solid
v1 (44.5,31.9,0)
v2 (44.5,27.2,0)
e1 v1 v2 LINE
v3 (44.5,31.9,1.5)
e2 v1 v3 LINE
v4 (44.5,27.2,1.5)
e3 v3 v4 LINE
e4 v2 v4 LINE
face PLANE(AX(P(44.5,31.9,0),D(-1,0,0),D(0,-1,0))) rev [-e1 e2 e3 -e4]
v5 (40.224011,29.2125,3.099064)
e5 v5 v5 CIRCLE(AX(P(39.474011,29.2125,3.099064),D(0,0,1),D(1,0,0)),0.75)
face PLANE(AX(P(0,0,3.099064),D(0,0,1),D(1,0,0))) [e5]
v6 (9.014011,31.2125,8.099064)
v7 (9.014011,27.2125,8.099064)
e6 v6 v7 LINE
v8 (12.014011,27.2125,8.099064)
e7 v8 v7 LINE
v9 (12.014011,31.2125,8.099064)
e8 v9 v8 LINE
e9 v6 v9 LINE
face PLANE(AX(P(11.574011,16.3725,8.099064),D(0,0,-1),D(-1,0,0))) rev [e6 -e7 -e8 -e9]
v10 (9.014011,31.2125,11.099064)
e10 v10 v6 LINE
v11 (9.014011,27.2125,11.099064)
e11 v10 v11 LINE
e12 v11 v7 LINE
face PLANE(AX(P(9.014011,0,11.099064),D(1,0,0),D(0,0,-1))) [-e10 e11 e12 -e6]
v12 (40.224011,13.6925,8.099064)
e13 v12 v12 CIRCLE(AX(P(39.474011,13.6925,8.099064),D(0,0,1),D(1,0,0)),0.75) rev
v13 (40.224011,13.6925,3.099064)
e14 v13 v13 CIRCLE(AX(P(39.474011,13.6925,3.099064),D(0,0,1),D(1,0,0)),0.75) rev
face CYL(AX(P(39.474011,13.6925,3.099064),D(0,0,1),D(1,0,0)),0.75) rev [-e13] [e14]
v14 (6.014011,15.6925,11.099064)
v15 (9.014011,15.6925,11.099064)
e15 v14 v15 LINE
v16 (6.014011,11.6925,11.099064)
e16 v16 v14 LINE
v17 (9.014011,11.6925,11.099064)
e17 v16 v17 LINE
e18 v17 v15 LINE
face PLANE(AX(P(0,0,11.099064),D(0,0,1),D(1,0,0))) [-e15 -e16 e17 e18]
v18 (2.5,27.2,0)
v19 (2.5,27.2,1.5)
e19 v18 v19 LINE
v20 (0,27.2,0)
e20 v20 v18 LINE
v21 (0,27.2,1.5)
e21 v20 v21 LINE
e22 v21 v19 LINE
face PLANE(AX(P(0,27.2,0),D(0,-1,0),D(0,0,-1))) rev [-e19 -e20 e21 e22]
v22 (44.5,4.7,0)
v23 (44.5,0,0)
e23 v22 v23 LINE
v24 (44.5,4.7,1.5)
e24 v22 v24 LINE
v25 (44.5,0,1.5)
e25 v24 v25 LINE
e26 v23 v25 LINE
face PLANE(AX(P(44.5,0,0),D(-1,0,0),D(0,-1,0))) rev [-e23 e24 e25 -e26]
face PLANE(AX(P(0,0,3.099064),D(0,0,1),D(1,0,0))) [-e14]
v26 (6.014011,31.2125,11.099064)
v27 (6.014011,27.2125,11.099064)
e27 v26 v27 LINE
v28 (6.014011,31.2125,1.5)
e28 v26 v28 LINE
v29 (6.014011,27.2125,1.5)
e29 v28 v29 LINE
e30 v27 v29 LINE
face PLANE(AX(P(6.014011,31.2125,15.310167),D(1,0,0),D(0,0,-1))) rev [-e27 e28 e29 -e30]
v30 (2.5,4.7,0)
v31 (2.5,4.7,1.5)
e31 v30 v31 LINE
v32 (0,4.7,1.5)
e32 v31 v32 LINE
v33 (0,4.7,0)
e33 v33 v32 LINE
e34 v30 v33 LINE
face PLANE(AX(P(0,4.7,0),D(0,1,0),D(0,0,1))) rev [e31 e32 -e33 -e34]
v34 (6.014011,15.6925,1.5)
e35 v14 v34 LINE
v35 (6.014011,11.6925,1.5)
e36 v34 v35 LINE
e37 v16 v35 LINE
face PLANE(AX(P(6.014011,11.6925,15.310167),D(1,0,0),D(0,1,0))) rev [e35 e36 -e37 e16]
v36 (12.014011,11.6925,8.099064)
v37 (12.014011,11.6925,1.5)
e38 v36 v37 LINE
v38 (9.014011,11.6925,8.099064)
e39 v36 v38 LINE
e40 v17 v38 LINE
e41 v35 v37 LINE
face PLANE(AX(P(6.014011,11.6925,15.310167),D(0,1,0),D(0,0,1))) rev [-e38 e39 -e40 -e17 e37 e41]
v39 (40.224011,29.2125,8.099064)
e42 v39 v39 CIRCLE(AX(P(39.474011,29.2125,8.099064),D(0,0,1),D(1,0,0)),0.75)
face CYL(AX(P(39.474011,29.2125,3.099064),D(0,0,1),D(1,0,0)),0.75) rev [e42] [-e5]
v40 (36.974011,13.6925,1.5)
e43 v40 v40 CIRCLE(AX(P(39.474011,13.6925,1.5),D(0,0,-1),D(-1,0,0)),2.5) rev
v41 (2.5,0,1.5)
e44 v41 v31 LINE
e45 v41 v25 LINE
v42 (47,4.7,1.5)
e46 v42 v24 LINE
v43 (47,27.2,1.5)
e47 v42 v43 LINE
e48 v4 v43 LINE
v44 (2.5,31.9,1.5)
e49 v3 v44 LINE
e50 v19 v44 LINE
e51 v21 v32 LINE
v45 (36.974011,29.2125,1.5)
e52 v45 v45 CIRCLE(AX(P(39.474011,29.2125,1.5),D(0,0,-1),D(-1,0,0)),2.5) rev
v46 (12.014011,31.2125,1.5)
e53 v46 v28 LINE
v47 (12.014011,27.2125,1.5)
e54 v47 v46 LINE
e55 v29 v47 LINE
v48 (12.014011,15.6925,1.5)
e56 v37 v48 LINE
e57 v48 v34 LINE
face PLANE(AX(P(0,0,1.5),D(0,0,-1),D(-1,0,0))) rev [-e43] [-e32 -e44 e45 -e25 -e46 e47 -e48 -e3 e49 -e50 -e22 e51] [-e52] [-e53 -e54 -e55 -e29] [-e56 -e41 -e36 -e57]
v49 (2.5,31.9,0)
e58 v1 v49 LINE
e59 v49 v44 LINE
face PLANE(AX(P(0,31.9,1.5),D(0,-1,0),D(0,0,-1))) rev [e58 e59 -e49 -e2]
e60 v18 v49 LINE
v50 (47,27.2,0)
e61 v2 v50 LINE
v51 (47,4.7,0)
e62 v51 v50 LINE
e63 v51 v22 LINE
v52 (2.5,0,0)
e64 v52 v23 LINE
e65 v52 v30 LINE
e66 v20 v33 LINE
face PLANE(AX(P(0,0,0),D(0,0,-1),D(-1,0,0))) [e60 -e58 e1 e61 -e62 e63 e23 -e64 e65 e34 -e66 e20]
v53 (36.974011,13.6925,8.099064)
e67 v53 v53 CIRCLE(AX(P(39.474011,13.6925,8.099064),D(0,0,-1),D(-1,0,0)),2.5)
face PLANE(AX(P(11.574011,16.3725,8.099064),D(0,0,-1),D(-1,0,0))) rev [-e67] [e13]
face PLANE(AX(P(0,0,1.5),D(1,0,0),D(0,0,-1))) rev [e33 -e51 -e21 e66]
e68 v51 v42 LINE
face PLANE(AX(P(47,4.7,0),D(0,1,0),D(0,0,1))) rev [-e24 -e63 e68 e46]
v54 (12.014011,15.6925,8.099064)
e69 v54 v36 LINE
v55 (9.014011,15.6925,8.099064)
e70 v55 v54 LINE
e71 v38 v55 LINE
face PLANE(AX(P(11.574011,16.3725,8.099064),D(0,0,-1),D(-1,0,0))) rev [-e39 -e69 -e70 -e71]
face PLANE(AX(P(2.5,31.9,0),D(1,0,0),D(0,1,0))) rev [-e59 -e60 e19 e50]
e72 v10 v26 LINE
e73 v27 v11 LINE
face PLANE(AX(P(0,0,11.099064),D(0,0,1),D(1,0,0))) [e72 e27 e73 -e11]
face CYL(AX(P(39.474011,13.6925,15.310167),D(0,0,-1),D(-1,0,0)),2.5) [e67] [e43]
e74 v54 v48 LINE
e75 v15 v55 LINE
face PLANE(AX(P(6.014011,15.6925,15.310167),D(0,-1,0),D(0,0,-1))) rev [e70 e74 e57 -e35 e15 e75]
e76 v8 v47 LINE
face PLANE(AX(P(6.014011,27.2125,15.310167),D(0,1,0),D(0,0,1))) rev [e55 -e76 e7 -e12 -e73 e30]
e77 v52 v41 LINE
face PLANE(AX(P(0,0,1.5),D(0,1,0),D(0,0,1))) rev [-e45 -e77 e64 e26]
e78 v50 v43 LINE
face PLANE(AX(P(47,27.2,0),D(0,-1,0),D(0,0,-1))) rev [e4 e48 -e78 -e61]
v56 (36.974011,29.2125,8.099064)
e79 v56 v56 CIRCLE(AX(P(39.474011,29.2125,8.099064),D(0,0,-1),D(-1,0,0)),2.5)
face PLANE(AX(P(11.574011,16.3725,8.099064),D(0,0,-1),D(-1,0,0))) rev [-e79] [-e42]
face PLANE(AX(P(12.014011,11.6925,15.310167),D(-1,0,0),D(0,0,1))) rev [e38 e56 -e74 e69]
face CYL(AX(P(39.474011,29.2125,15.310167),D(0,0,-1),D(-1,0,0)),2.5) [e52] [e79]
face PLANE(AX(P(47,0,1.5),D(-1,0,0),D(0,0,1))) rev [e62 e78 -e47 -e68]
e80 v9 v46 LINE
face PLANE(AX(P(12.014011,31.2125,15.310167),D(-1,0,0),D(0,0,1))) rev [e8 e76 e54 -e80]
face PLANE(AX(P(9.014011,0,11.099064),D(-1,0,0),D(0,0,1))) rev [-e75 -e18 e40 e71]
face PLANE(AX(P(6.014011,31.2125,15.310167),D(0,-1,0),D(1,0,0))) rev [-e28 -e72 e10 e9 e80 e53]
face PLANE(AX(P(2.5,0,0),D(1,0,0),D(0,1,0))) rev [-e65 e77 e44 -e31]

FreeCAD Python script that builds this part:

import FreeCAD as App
import Part
import Sketcher
from FreeCAD import Vector


def add_polygon(sketch, points):
    """Adds a closed chain of lines whose ends are joined by coincident constraints."""
    first, n = sketch.GeometryCount, len(points)
    for a, b in zip(points, points[1:] + points[:1]):
        sketch.addGeometry(Part.LineSegment(App.Vector(*a, 0), App.Vector(*b, 0)), False)
    for i in range(n):
        sketch.addConstraint(Sketcher.Constraint("Coincident", first + i, 2, first + (i + 1) % n, 1))

doc = App.newDocument("Part")
body = doc.addObject("PartDesign::Body", "Body")

# Sketch on XY plane
sketch1 = body.newObject("Sketcher::SketchObject", "Sketch")
sketch1.AttachmentSupport = (doc.getObject("XY_Plane"), [""])
sketch1.MapMode = "FlatFace"
add_polygon(sketch1, [(0, 31.9), (0, 0), (47, 0), (47, 31.9)])  # lines 0-3
sketch1.addConstraint([
    Sketcher.Constraint("Vertical", 0),
    Sketcher.Constraint("Horizontal", 1),
    Sketcher.Constraint("Vertical", 2),
    Sketcher.Constraint("Horizontal", 3),
    Sketcher.Constraint("Coincident", 0, 2, -1, 1),
    Sketcher.Constraint("DistanceX", 1, 1, 1, 2, 47.0),
    Sketcher.Constraint("DistanceY", 0, 2, 0, 1, 31.9),
])
pad1 = body.newObject("PartDesign::Pad", "Pad")
pad1.Profile = sketch1
pad1.Length = 1.5

# Sketch on XY plane
sketch2 = body.newObject("Sketcher::SketchObject", "Sketch001")
sketch2.AttachmentSupport = (doc.getObject("XY_Plane"), [""])
sketch2.MapMode = "FlatFace"
sketch2.AttachmentOffset = App.Placement(Vector(0, 0, 1.5), App.Rotation())
add_polygon(sketch2, [(44.5, 31.9), (44.5, 27.2), (47, 27.2), (47, 31.9)])  # lines 0-3
add_polygon(sketch2, [(44.5, 4.7), (44.5, 0), (47, 0), (47, 4.7)])  # lines 4-7
add_polygon(sketch2, [(0, 4.7), (0, 0), (2.5, 0), (2.5, 4.7)])  # lines 8-11
add_polygon(sketch2, [(0, 31.9), (0, 27.2), (2.5, 27.2), (2.5, 31.9)])  # lines 12-15
sketch2.addConstraint([
    Sketcher.Constraint("Vertical", 0),
    Sketcher.Constraint("Horizontal", 1),
    Sketcher.Constraint("Vertical", 2),
    Sketcher.Constraint("Horizontal", 3),
    Sketcher.Constraint("Vertical", 4),
    Sketcher.Constraint("Horizontal", 5),
    Sketcher.Constraint("Vertical", 6),
    Sketcher.Constraint("Horizontal", 7),
    Sketcher.Constraint("Vertical", 8),
    Sketcher.Constraint("Horizontal", 9),
    Sketcher.Constraint("Vertical", 10),
    Sketcher.Constraint("Horizontal", 11),
    Sketcher.Constraint("Vertical", 12),
    Sketcher.Constraint("Horizontal", 13),
    Sketcher.Constraint("Vertical", 14),
    Sketcher.Constraint("Horizontal", 15),
    Sketcher.Constraint("Coincident", 8, 2, -1, 1),
    Sketcher.Constraint("PointOnObject", 4, 2, -1),
    Sketcher.Constraint("PointOnObject", 12, 2, -2),
    Sketcher.Constraint("Horizontal", 7, 2, 10, 2),
    Sketcher.Constraint("Horizontal", 1, 2, 12, 2),
    Sketcher.Constraint("Horizontal", 3, 2, 14, 2),
    Sketcher.Constraint("Vertical", 3, 2, 4, 2),
    Sketcher.Constraint("Vertical", 2, 2, 5, 2),
    Sketcher.Constraint("Vertical", 10, 2, 13, 2),
    Sketcher.Constraint("Equal", 7, 9),
    Sketcher.Constraint("Equal", 2, 4),
    Sketcher.Constraint("DistanceX", 1, 1, 1, 2, 2.5),
    Sketcher.Constraint("DistanceY", 0, 2, 0, 1, 4.7),
    Sketcher.Constraint("DistanceX", -1, 1, 1, 2, 47.0),
    Sketcher.Constraint("DistanceY", -1, 1, 0, 2, 27.2),
])
pocket1 = body.newObject("PartDesign::Pocket", "Pocket")
pocket1.Profile = sketch2
pocket1.Type = "ThroughAll"

# Sketch on XY plane
sketch3 = body.newObject("Sketcher::SketchObject", "Sketch002")
sketch3.AttachmentSupport = (doc.getObject("XY_Plane"), [""])
sketch3.MapMode = "FlatFace"
sketch3.AttachmentOffset = App.Placement(Vector(0, 0, 1.5), App.Rotation())
sketch3.addGeometry(Part.Circle(Vector(39.474011, 29.2125, 0), Vector(0, 0, 1), 2.5), False)  # 0
sketch3.addGeometry(Part.Circle(Vector(39.474011, 13.6925, 0), Vector(0, 0, 1), 2.5), False)  # 1
add_polygon(sketch3, [(6.014011, 31.2125), (6.014011, 27.2125), (12.014011, 27.2125), (12.014011, 31.2125)])  # lines 2-5
add_polygon(sketch3, [(6.014011, 15.6925), (6.014011, 11.6925), (12.014011, 11.6925), (12.014011, 15.6925)])  # lines 6-9
sketch3.addConstraint([
    Sketcher.Constraint("Vertical", 2),
    Sketcher.Constraint("Horizontal", 3),
    Sketcher.Constraint("Vertical", 4),
    Sketcher.Constraint("Horizontal", 5),
    Sketcher.Constraint("Vertical", 6),
    Sketcher.Constraint("Horizontal", 7),
    Sketcher.Constraint("Vertical", 8),
    Sketcher.Constraint("Horizontal", 9),
    Sketcher.Constraint("Equal", 0, 1),
    Sketcher.Constraint("Vertical", 0, 3, 1, 3),
    Sketcher.Constraint("Vertical", 5, 2, 6, 2),
    Sketcher.Constraint("Vertical", 4, 2, 7, 2),
    Sketcher.Constraint("Equal", 4, 6),
    Sketcher.Constraint("Diameter", 0, 5.0),
    Sketcher.Constraint("DistanceX", 3, 1, 3, 2, 6.0),
    Sketcher.Constraint("DistanceY", 2, 2, 2, 1, 4.0),
    Sketcher.Constraint("DistanceY", 2, 2, 0, 3, 2.0),
    Sketcher.Constraint("DistanceY", 6, 2, 1, 3, 2.0),
    Sketcher.Constraint("DistanceY", 1, 3, 0, 3, 15.52),
    Sketcher.Constraint("DistanceX", 2, 2, 0, 3, 33.46),
    Sketcher.Constraint("DistanceY", -1, 1, 0, 3, 29.2125),
    Sketcher.Constraint("DistanceX", -1, 1, 0, 3, 39.474011),
])
pad2 = body.newObject("PartDesign::Pad", "Pad001")
pad2.Profile = sketch3
pad2.Length = 6.599064

# Sketch on XY plane
sketch4 = body.newObject("Sketcher::SketchObject", "Sketch003")
sketch4.AttachmentSupport = (doc.getObject("XY_Plane"), [""])
sketch4.MapMode = "FlatFace"
sketch4.AttachmentOffset = App.Placement(Vector(0, 0, 8.099064), App.Rotation())
add_polygon(sketch4, [(6.014011, 15.6925), (6.014011, 11.6925), (9.014011, 11.6925), (9.014011, 15.6925)])  # lines 0-3
add_polygon(sketch4, [(6.014011, 31.2125), (6.014011, 27.2125), (9.014011, 27.2125), (9.014011, 31.2125)])  # lines 4-7
sketch4.addConstraint([
    Sketcher.Constraint("Vertical", 0),
    Sketcher.Constraint("Horizontal", 1),
    Sketcher.Constraint("Vertical", 2),
    Sketcher.Constraint("Horizontal", 3),
    Sketcher.Constraint("Vertical", 4),
    Sketcher.Constraint("Horizontal", 5),
    Sketcher.Constraint("Vertical", 6),
    Sketcher.Constraint("Horizontal", 7),
    Sketcher.Constraint("Vertical", 3, 2, 4, 2),
    Sketcher.Constraint("Vertical", 2, 2, 5, 2),
    Sketcher.Constraint("Equal", 2, 4),
    Sketcher.Constraint("DistanceX", 1, 1, 1, 2, 3.0),
    Sketcher.Constraint("DistanceY", 0, 2, 0, 1, 4.0),
    Sketcher.Constraint("DistanceY", 3, 2, 4, 2, 11.52),
    Sketcher.Constraint("DistanceY", -1, 1, 0, 2, 11.6925),
    Sketcher.Constraint("DistanceX", -1, 1, 0, 2, 6.014011),
])
pad3 = body.newObject("PartDesign::Pad", "Pad002")
pad3.Profile = sketch4
pad3.Length = 3

# Sketch on XY plane
sketch5 = body.newObject("Sketcher::SketchObject", "Sketch004")
sketch5.AttachmentSupport = (doc.getObject("XY_Plane"), [""])
sketch5.MapMode = "FlatFace"
sketch5.AttachmentOffset = App.Placement(Vector(0, 0, 8.099064), App.Rotation())
sketch5.addGeometry([
    Part.Circle(Vector(39.474011, 29.2125, 0), Vector(0, 0, 1), 0.75),
    Part.Circle(Vector(39.474011, 13.6925, 0), Vector(0, 0, 1), 0.75),
], False)
sketch5.addConstraint([
    Sketcher.Constraint("Equal", 0, 1),
    Sketcher.Constraint("Vertical", 0, 3, 1, 3),
    Sketcher.Constraint("Diameter", 0, 1.5),
    Sketcher.Constraint("DistanceY", 1, 3, 0, 3, 15.52),
    Sketcher.Constraint("DistanceY", -1, 1, 0, 3, 29.2125),
    Sketcher.Constraint("DistanceX", -1, 1, 0, 3, 39.474011),
])
pocket2 = body.newObject("PartDesign::Pocket", "Pocket001")
pocket2.Profile = sketch5
pocket2.Length = 5

doc.recompute()
